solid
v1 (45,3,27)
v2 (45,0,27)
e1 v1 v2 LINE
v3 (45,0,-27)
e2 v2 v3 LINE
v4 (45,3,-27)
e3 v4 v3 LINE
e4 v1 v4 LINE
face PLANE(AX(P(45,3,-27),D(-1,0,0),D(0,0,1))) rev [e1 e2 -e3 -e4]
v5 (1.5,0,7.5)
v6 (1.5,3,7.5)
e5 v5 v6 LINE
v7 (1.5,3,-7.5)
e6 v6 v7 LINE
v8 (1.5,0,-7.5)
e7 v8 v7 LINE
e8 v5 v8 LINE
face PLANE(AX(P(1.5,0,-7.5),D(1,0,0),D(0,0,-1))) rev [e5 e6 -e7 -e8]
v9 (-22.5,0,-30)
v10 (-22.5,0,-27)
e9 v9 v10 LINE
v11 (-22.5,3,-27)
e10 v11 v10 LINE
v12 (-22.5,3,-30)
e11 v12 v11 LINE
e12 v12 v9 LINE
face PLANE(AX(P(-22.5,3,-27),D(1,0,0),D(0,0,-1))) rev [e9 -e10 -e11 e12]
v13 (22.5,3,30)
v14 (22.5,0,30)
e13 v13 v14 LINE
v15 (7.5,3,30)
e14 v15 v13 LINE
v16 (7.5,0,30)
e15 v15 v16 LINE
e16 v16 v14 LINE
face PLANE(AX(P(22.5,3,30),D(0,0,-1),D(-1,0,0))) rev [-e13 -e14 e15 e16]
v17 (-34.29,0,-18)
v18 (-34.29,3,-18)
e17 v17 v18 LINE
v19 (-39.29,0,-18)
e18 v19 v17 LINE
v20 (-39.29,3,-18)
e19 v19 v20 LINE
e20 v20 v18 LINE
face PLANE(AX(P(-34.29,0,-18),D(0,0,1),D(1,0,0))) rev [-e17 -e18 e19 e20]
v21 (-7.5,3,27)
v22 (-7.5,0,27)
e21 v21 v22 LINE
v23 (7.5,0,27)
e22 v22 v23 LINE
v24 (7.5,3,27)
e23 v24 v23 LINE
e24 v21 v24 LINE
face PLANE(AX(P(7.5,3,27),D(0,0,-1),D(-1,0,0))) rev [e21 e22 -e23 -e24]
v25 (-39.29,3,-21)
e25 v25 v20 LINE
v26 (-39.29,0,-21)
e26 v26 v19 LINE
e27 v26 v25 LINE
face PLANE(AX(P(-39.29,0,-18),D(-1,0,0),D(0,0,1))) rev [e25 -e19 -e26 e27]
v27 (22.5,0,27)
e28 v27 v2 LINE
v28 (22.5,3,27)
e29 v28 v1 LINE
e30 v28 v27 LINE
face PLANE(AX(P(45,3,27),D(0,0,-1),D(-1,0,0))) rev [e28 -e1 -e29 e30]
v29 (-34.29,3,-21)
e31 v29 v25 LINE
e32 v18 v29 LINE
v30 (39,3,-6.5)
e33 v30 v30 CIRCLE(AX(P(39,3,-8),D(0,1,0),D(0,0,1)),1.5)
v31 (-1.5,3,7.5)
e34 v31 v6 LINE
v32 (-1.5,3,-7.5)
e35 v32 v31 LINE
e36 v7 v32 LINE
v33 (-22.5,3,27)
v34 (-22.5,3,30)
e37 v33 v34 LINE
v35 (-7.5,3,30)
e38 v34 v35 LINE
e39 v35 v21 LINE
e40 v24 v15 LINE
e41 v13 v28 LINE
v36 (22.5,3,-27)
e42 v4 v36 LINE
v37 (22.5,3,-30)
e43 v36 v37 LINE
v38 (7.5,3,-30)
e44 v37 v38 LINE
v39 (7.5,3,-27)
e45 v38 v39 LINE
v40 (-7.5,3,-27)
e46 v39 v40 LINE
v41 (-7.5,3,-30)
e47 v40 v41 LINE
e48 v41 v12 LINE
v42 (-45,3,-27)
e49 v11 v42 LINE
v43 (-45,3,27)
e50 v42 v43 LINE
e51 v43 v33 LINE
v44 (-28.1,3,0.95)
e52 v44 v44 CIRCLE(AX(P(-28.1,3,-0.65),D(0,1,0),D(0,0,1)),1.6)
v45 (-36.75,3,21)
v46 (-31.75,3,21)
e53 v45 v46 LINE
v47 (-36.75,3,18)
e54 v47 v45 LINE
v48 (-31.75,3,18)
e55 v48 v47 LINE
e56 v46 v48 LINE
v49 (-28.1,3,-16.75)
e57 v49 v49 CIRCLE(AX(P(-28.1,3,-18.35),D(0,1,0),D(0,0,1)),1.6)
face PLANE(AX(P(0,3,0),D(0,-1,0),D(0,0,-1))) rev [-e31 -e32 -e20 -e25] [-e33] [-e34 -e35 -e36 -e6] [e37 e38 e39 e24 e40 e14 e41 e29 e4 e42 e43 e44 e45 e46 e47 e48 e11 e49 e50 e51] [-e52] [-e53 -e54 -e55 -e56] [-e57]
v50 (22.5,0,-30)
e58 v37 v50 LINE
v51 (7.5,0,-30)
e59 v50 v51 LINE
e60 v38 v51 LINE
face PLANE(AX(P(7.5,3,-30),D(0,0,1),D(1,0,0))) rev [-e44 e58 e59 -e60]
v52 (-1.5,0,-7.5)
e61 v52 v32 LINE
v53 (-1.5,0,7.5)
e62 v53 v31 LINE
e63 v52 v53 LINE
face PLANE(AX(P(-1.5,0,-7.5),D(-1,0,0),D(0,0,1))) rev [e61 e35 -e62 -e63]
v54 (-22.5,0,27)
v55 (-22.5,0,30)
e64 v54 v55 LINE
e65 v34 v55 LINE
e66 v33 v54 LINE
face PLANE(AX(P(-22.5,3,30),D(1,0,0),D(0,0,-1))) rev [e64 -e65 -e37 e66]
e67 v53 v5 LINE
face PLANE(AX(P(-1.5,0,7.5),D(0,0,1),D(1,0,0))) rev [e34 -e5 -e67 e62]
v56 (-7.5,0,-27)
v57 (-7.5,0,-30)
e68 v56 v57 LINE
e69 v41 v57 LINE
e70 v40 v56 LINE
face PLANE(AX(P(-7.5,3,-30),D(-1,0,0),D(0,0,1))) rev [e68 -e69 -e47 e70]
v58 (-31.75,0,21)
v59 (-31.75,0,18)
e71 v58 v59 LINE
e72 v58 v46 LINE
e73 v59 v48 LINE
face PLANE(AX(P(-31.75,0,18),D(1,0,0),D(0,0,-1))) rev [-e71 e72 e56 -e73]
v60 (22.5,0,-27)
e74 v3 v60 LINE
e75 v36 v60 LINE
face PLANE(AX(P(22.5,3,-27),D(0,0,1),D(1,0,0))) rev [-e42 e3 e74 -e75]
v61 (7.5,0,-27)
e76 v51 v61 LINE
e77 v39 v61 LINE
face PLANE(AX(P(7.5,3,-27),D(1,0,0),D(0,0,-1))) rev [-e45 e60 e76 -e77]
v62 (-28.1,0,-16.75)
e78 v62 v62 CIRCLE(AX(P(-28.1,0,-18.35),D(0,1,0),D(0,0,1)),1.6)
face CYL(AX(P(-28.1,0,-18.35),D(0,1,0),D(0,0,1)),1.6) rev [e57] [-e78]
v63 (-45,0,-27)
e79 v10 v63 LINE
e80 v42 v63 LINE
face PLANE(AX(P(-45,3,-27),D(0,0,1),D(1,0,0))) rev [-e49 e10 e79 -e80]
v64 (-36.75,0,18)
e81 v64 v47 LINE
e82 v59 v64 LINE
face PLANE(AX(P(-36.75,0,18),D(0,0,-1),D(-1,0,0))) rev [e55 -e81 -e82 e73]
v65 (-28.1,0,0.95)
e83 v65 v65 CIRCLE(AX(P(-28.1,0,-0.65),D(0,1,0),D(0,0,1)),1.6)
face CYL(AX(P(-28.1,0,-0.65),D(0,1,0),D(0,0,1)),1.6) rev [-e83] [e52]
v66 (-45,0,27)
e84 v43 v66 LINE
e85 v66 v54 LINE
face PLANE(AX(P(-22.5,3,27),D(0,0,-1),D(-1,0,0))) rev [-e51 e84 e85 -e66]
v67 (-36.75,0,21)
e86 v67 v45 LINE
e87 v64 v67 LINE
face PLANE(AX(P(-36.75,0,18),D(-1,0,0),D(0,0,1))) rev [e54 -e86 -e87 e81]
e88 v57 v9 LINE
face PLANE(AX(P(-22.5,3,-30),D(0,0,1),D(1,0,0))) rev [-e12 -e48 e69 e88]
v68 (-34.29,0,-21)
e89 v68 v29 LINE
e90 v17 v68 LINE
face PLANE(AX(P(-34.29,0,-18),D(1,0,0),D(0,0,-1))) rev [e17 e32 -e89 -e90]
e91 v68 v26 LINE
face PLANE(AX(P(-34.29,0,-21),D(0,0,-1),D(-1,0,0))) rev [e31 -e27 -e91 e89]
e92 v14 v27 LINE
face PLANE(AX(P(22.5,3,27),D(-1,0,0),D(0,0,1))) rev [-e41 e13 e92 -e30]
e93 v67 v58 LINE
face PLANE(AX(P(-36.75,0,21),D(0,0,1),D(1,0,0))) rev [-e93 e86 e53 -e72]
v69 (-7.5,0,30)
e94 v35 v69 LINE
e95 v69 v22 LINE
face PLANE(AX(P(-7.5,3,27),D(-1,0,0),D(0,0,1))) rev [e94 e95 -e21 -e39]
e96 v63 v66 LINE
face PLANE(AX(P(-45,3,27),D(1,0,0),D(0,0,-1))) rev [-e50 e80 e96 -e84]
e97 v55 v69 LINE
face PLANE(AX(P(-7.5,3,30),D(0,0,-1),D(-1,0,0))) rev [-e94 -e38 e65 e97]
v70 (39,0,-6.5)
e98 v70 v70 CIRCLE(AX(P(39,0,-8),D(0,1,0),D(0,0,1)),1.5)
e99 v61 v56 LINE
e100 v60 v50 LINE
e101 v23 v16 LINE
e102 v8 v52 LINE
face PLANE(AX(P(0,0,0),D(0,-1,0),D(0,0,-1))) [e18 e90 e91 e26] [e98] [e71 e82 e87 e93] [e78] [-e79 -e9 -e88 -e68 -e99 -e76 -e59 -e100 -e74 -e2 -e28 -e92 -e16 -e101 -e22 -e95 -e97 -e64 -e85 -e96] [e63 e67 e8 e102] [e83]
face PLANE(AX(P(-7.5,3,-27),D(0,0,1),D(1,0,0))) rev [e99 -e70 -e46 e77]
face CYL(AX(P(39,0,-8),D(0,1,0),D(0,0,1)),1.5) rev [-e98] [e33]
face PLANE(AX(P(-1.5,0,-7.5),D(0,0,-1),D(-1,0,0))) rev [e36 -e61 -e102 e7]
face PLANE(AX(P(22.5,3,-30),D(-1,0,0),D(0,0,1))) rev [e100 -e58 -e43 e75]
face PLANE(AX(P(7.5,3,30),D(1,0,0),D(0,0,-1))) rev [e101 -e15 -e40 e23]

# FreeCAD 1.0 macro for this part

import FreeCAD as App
import Part
import Sketcher

V = App.Vector
Q = App.Units.Quantity


def add_polygon(sketch, points):
    """Adds a closed chain of lines whose ends are joined by coincident constraints."""
    first, n = sketch.GeometryCount, len(points)
    for a, b in zip(points, points[1:] + points[:1]):
        sketch.addGeometry(Part.LineSegment(App.Vector(*a, 0), App.Vector(*b, 0)), False)
    for i in range(n):
        sketch.addConstraint(Sketcher.Constraint("Coincident", first + i, 2, first + (i + 1) % n, 1))

doc = App.newDocument("Part")
params = doc.addObject("Spreadsheet::Sheet", "Params")
for row, (alias, value) in enumerate([
    ("sketch1_width", "15 mm"),
    ("sketch1_height", "54 mm"),
    ("sketch1_height2", "3 mm"),
    ("sketch1_width2", "22.5 mm"),
    ("pad1_length", "3 mm"),
    ("sketch2_width", "5 mm"),
    ("sketch2_height", "3 mm"),
    ("sketch3_width", "3 mm"),
    ("sketch3_height", "15 mm"),
    ("sketch4_diameter", "3 mm"),
    ("sketch5_diameter", "3.2 mm"),
], start=1):
    params.set(f"A{row}", alias)
    params.set(f"B{row}", "=" + value)
    params.setAlias(f"B{row}", alias)

body = doc.addObject("PartDesign::Body", "Body")

# Sketch on XZ plane
sketch1 = body.newObject("Sketcher::SketchObject", "Sketch")
sketch1.AttachmentSupport = (doc.getObject("XZ_Plane"), [""])
sketch1.MapMode = "FlatFace"
add_polygon(sketch1, [(-22.5, -27), (-45, -27), (-45, 27), (-22.5, 27), (-22.5, 30), (-7.5, 30), (-7.5, 27), (7.5, 27), (7.5, 30), (22.5, 30), (22.5, 27), (45, 27), (45, -27), (22.5, -27), (22.5, -30), (7.5, -30), (7.5, -27), (-7.5, -27), (-7.5, -30), (-22.5, -30)])  # lines 0-19
sketch1.addConstraint([
    Sketcher.Constraint("Horizontal", 0),
    Sketcher.Constraint("Vertical", 1),
    Sketcher.Constraint("Horizontal", 2),
    Sketcher.Constraint("Vertical", 3),
    Sketcher.Constraint("Horizontal", 4),
    Sketcher.Constraint("Vertical", 5),
    Sketcher.Constraint("Horizontal", 6),
    Sketcher.Constraint("Vertical", 7),
    Sketcher.Constraint("Horizontal", 8),
    Sketcher.Constraint("Vertical", 9),
    Sketcher.Constraint("Horizontal", 10),
    Sketcher.Constraint("Vertical", 11),
    Sketcher.Constraint("Horizontal", 12),
    Sketcher.Constraint("Vertical", 13),
    Sketcher.Constraint("Horizontal", 14),
    Sketcher.Constraint("Vertical", 15),
    Sketcher.Constraint("Horizontal", 16),
    Sketcher.Constraint("Vertical", 17),
    Sketcher.Constraint("Horizontal", 18),
    Sketcher.Constraint("Vertical", 19),
    Sketcher.Constraint("Symmetric", 0, 2, 10, 2, -1, 1),
    Sketcher.Constraint("Symmetric", 2, 2, 12, 2, -1, 1),
    Sketcher.Constraint("Symmetric", 4, 2, 14, 2, -1, 1),
    Sketcher.Constraint("Symmetric", 6, 2, 16, 2, -1, 1),
    Sketcher.Constraint("Symmetric", 8, 2, 18, 2, -1, 1),
    Sketcher.Constraint("Symmetric", 4, 2, 7, 2, -2),
    Sketcher.Constraint("Symmetric", 2, 2, 9, 2, -2),
    Sketcher.Constraint("Horizontal", 2, 2, 5, 2),
    Sketcher.Constraint("Equal", 4, 6),
    Sketcher.Constraint("DistanceX", 4, 1, 4, 2, Q("15 mm")),
    Sketcher.Constraint("DistanceY", 1, 1, 1, 2, Q("54 mm")),
    Sketcher.Constraint("DistanceY", 3, 1, 3, 2, Q("3 mm")),
    Sketcher.Constraint("DistanceX", 0, 2, 0, 1, Q("22.5 mm")),
])
sketch1.setExpression("Constraints[49]", "Params.sketch1_width")
sketch1.setExpression("Constraints[50]", "Params.sketch1_height")
sketch1.setExpression("Constraints[51]", "Params.sketch1_height2")
sketch1.setExpression("Constraints[52]", "Params.sketch1_width2")
pad1 = body.newObject("PartDesign::Pad", "Pad")
pad1.Profile = sketch1
pad1.setExpression("Length", "Params.pad1_length")
pad1.Reversed = True

# Sketch on XZ plane
sketch2 = body.newObject("Sketcher::SketchObject", "Sketch001")
sketch2.AttachmentSupport = (doc.getObject("XZ_Plane"), [""])
sketch2.MapMode = "FlatFace"
sketch2.AttachmentOffset = App.Placement(V(0, 0, -3), App.Rotation())
add_polygon(sketch2, [(-36.8, 18), (-36.8, 21), (-31.8, 21), (-31.8, 18)])  # lines 0-3
add_polygon(sketch2, [(-39.3, -21), (-39.3, -18), (-34.3, -18), (-34.3, -21)])  # lines 4-7
sketch2.addConstraint([
    Sketcher.Constraint("Vertical", 0),
    Sketcher.Constraint("Horizontal", 1),
    Sketcher.Constraint("Vertical", 2),
    Sketcher.Constraint("Horizontal", 3),
    Sketcher.Constraint("Vertical", 4),
    Sketcher.Constraint("Horizontal", 5),
    Sketcher.Constraint("Vertical", 6),
    Sketcher.Constraint("Horizontal", 7),
    Sketcher.Constraint("Equal", 3, 5),
    Sketcher.Constraint("Equal", 2, 4),
    Sketcher.Constraint("DistanceX", 1, 1, 1, 2, Q("5 mm")),
    Sketcher.Constraint("DistanceY", 0, 1, 0, 2, Q("3 mm")),
    Sketcher.Constraint("DistanceY", -1, 1, 0, 2, Q("21 mm")),
    Sketcher.Constraint("DistanceY", 4, 2, -1, 1, Q("18 mm")),
    Sketcher.Constraint("DistanceX", 0, 2, -1, 1, Q("36.75 mm")),
    Sketcher.Constraint("DistanceX", 4, 2, -1, 1, Q("39.29 mm")),
])
sketch2.setExpression("Constraints[18]", "Params.sketch2_width")
sketch2.setExpression("Constraints[19]", "Params.sketch2_height")
pocket1 = body.newObject("PartDesign::Pocket", "Pocket")
pocket1.Profile = sketch2
pocket1.Type = "ThroughAll"
pocket1.Reversed = True

# Sketch on XZ plane
sketch3 = body.newObject("Sketcher::SketchObject", "Sketch002")
sketch3.AttachmentSupport = (doc.getObject("XZ_Plane"), [""])
sketch3.MapMode = "FlatFace"
sketch3.AttachmentOffset = App.Placement(V(0, 0, -3), App.Rotation())
add_polygon(sketch3, [(-1.5, -7.5), (-1.5, 7.5), (1.5, 7.5), (1.5, -7.5)])  # lines 0-3
sketch3.addConstraint([
    Sketcher.Constraint("Vertical", 0),
    Sketcher.Constraint("Horizontal", 1),
    Sketcher.Constraint("Vertical", 2),
    Sketcher.Constraint("Horizontal", 3),
    Sketcher.Constraint("Symmetric", 0, 2, 2, 2, -1, 1),
    Sketcher.Constraint("DistanceX", 1, 1, 1, 2, Q("3 mm")),
    Sketcher.Constraint("DistanceY", 0, 1, 0, 2, Q("15 mm")),
])
sketch3.setExpression("Constraints[9]", "Params.sketch3_width")
sketch3.setExpression("Constraints[10]", "Params.sketch3_height")
pocket2 = body.newObject("PartDesign::Pocket", "Pocket001")
pocket2.Profile = sketch3
pocket2.Type = "ThroughAll"
pocket2.Reversed = True

# Sketch on XZ plane
sketch4 = body.newObject("Sketcher::SketchObject", "Sketch003")
sketch4.AttachmentSupport = (doc.getObject("XZ_Plane"), [""])
sketch4.MapMode = "FlatFace"
sketch4.AttachmentOffset = App.Placement(V(0, 0, -3), App.Rotation())
sketch4.addGeometry(Part.Circle(V(39, -8, 0), V(0, 0, 1), 1.5), False)
sketch4.addConstraint([
    Sketcher.Constraint("Diameter", 0, Q("3 mm")),
    Sketcher.Constraint("DistanceX", -1, 1, 0, 3, Q("39 mm")),
    Sketcher.Constraint("DistanceY", 0, 3, -1, 1, Q("8 mm")),
])
sketch4.setExpression("Constraints[0]", "Params.sketch4_diameter")
pocket3 = body.newObject("PartDesign::Pocket", "Pocket002")
pocket3.Profile = sketch4
pocket3.Type = "ThroughAll"
pocket3.Reversed = True

# Sketch on XZ plane
sketch5 = body.newObject("Sketcher::SketchObject", "Sketch004")
sketch5.AttachmentSupport = (doc.getObject("XZ_Plane"), [""])
sketch5.MapMode = "FlatFace"
sketch5.AttachmentOffset = App.Placement(V(0, 0, -3), App.Rotation())
sketch5.addGeometry([
    Part.Circle(V(-28.1, -18.4, 0), V(0, 0, 1), 1.6),
    Part.Circle(V(-28.1, -0.7, 0), V(0, 0, 1), 1.6),
], False)
sketch5.addConstraint([
    Sketcher.Constraint("Equal", 0, 1),
    Sketcher.Constraint("Vertical", 0, 3, 1, 3),
    Sketcher.Constraint("Diameter", 0, Q("3.2 mm")),
    Sketcher.Constraint("DistanceX", 0, 3, -1, 1, Q("28.1 mm")),
    Sketcher.Constraint("DistanceY", 0, 3, 1, 3, Q("17.7 mm")),
    Sketcher.Constraint("DistanceY", 0, 3, -1, 1, Q("18.35 mm")),
])
sketch5.setExpression("Constraints[2]", "Params.sketch5_diameter")
pocket4 = body.newObject("PartDesign::Pocket", "Pocket003")
pocket4.Profile = sketch5
pocket4.Type = "ThroughAll"
pocket4.Reversed = True

doc.recompute()
